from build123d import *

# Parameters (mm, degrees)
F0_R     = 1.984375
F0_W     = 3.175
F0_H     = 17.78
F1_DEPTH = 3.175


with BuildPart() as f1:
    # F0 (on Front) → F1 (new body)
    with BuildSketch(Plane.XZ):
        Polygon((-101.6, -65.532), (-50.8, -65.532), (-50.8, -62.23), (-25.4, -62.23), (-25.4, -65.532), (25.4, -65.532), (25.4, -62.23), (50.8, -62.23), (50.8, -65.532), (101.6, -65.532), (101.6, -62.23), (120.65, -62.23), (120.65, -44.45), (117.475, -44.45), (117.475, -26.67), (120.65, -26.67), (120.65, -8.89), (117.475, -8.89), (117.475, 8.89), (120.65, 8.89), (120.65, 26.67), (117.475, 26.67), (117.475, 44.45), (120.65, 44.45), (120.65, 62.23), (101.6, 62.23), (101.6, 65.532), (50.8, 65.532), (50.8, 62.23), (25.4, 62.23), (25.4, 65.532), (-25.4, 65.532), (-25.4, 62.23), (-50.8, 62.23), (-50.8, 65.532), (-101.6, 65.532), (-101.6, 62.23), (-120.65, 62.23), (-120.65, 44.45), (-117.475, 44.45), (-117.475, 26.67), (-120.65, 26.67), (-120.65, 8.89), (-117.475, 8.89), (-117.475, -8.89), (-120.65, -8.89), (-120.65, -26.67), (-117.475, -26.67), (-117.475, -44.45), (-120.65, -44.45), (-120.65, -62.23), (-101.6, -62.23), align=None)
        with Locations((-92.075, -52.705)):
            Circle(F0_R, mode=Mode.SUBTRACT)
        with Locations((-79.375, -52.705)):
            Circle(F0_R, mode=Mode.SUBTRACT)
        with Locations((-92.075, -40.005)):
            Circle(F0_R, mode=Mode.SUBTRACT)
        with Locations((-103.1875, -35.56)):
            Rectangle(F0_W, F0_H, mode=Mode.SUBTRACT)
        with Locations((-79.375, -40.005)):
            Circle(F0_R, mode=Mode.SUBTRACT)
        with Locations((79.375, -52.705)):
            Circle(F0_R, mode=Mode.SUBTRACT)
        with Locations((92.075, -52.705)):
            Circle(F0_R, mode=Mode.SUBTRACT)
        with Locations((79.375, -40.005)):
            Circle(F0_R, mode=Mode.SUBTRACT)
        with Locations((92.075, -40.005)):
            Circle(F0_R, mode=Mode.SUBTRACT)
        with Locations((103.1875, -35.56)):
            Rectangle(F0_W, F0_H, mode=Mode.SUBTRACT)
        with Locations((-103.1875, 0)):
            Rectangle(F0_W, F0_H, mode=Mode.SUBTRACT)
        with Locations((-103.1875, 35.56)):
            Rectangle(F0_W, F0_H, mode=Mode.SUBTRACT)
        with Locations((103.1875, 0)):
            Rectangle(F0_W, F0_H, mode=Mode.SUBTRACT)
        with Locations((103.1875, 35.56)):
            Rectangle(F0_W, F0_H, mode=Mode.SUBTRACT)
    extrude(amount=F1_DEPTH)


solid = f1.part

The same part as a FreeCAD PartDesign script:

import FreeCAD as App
import Part
import Sketcher
from FreeCAD import Vector
Q = App.Units.Quantity


def add_polygon(sketch, points):
    """Adds a closed chain of lines whose ends are joined by coincident constraints."""
    first, n = sketch.GeometryCount, len(points)
    for a, b in zip(points, points[1:] + points[:1]):
        sketch.addGeometry(Part.LineSegment(App.Vector(*a, 0), App.Vector(*b, 0)), False)
    for i in range(n):
        sketch.addConstraint(Sketcher.Constraint("Coincident", first + i, 2, first + (i + 1) % n, 1))

doc = App.newDocument("Part")
body = doc.addObject("PartDesign::Body", "Body")

# Sketch on XZ plane
sketch1 = doc.addObject("Sketcher::SketchObject", "Sketch")
body.addObject(sketch1)
sketch1.AttachmentSupport = (doc.XZ_Plane, [""])
sketch1.MapMode = "FlatFace"
add_polygon(sketch1, [(-101.6, -65.5), (-50.8, -65.5), (-50.8, -62.2), (-25.4, -62.2), (-25.4, -65.5), (25.4, -65.5), (25.4, -62.2), (50.8, -62.2), (50.8, -65.5), (101.6, -65.5), (101.6, -62.2), (120.7, -62.2), (120.7, -44.5), (117.5, -44.5), (117.5, -26.7), (120.7, -26.7), (120.7, -8.9), (117.5, -8.9), (117.5, 8.9), (120.7, 8.9), (120.7, 26.7), (117.5, 26.7), (117.5, 44.5), (120.7, 44.5), (120.7, 62.2), (101.6, 62.2), (101.6, 65.5), (50.8, 65.5), (50.8, 62.2), (25.4, 62.2), (25.4, 65.5), (-25.4, 65.5), (-25.4, 62.2), (-50.8, 62.2), (-50.8, 65.5), (-101.6, 65.5), (-101.6, 62.2), (-120.7, 62.2), (-120.7, 44.5), (-117.5, 44.5), (-117.5, 26.7), (-120.7, 26.7), (-120.7, 8.9), (-117.5, 8.9), (-117.5, -8.9), (-120.7, -8.9), (-120.7, -26.7), (-117.5, -26.7), (-117.5, -44.5), (-120.7, -44.5), (-120.7, -62.2), (-101.6, -62.2)])  # lines 0-51
sketch1.addGeometry(Part.Circle(Vector(-92.1, -52.7, 0), Vector(0, 0, 1), 2), False)  # 52
sketch1.addGeometry(Part.Circle(Vector(-79.4, -52.7, 0), Vector(0, 0, 1), 2), False)  # 53
sketch1.addGeometry(Part.Circle(Vector(-92.1, -40, 0), Vector(0, 0, 1), 2), False)  # 54
sketch1.addGeometry(Part.Circle(Vector(-79.4, -40, 0), Vector(0, 0, 1), 2), False)  # 55
add_polygon(sketch1, [(-101.6, -44.5), (-104.8, -44.5), (-104.8, -26.7), (-101.6, -26.7)])  # lines 56-59
sketch1.addGeometry(Part.Circle(Vector(79.4, -52.7, 0), Vector(0, 0, 1), 2), False)  # 60
sketch1.addGeometry(Part.Circle(Vector(92.1, -52.7, 0), Vector(0, 0, 1), 2), False)  # 61
sketch1.addGeometry(Part.Circle(Vector(79.4, -40, 0), Vector(0, 0, 1), 2), False)  # 62
sketch1.addGeometry(Part.Circle(Vector(92.1, -40, 0), Vector(0, 0, 1), 2), False)  # 63
add_polygon(sketch1, [(104.8, -44.5), (101.6, -44.5), (101.6, -26.7), (104.8, -26.7)])  # lines 64-67
add_polygon(sketch1, [(-101.6, -8.9), (-104.8, -8.9), (-104.8, 8.9), (-101.6, 8.9)])  # lines 68-71
add_polygon(sketch1, [(-101.6, 26.7), (-104.8, 26.7), (-104.8, 44.5), (-101.6, 44.5)])  # lines 72-75
add_polygon(sketch1, [(104.8, -8.9), (101.6, -8.9), (101.6, 8.9), (104.8, 8.9)])  # lines 76-79
add_polygon(sketch1, [(104.8, 26.7), (101.6, 26.7), (101.6, 44.5), (104.8, 44.5)])  # lines 80-83
sketch1.addConstraint([
    Sketcher.Constraint("Horizontal", 0),
    Sketcher.Constraint("Vertical", 1),
    Sketcher.Constraint("Horizontal", 2),
    Sketcher.Constraint("Vertical", 3),
    Sketcher.Constraint("Horizontal", 4),
    Sketcher.Constraint("Vertical", 5),
    Sketcher.Constraint("Horizontal", 6),
    Sketcher.Constraint("Vertical", 7),
    Sketcher.Constraint("Horizontal", 8),
    Sketcher.Constraint("Vertical", 9),
    Sketcher.Constraint("Horizontal", 10),
    Sketcher.Constraint("Vertical", 11),
    Sketcher.Constraint("Horizontal", 12),
    Sketcher.Constraint("Vertical", 13),
    Sketcher.Constraint("Horizontal", 14),
    Sketcher.Constraint("Vertical", 15),
    Sketcher.Constraint("Horizontal", 16),
    Sketcher.Constraint("Vertical", 17),
    Sketcher.Constraint("Horizontal", 18),
    Sketcher.Constraint("Vertical", 19),
    Sketcher.Constraint("Horizontal", 20),
    Sketcher.Constraint("Vertical", 21),
    Sketcher.Constraint("Horizontal", 22),
    Sketcher.Constraint("Vertical", 23),
    Sketcher.Constraint("Horizontal", 24),
    Sketcher.Constraint("Vertical", 25),
    Sketcher.Constraint("Horizontal", 26),
    Sketcher.Constraint("Vertical", 27),
    Sketcher.Constraint("Horizontal", 28),
    Sketcher.Constraint("Vertical", 29),
    Sketcher.Constraint("Horizontal", 30),
    Sketcher.Constraint("Vertical", 31),
    Sketcher.Constraint("Horizontal", 32),
    Sketcher.Constraint("Vertical", 33),
    Sketcher.Constraint("Horizontal", 34),
    Sketcher.Constraint("Vertical", 35),
    Sketcher.Constraint("Horizontal", 36),
    Sketcher.Constraint("Vertical", 37),
    Sketcher.Constraint("Horizontal", 38),
    Sketcher.Constraint("Vertical", 39),
    Sketcher.Constraint("Horizontal", 40),
    Sketcher.Constraint("Vertical", 41),
    Sketcher.Constraint("Horizontal", 42),
    Sketcher.Constraint("Vertical", 43),
    Sketcher.Constraint("Horizontal", 44),
    Sketcher.Constraint("Vertical", 45),
    Sketcher.Constraint("Horizontal", 46),
    Sketcher.Constraint("Vertical", 47),
    Sketcher.Constraint("Horizontal", 48),
    Sketcher.Constraint("Vertical", 49),
    Sketcher.Constraint("Horizontal", 50),
    Sketcher.Constraint("Vertical", 51),
    Sketcher.Constraint("Horizontal", 56),
    Sketcher.Constraint("Vertical", 57),
    Sketcher.Constraint("Horizontal", 58),
    Sketcher.Constraint("Vertical", 59),
    Sketcher.Constraint("Horizontal", 64),
    Sketcher.Constraint("Vertical", 65),
    Sketcher.Constraint("Horizontal", 66),
    Sketcher.Constraint("Vertical", 67),
    Sketcher.Constraint("Horizontal", 68),
    Sketcher.Constraint("Vertical", 69),
    Sketcher.Constraint("Horizontal", 70),
    Sketcher.Constraint("Vertical", 71),
    Sketcher.Constraint("Horizontal", 72),
    Sketcher.Constraint("Vertical", 73),
    Sketcher.Constraint("Horizontal", 74),
    Sketcher.Constraint("Vertical", 75),
    Sketcher.Constraint("Horizontal", 76),
    Sketcher.Constraint("Vertical", 77),
    Sketcher.Constraint("Horizontal", 78),
    Sketcher.Constraint("Vertical", 79),
    Sketcher.Constraint("Horizontal", 80),
    Sketcher.Constraint("Vertical", 81),
    Sketcher.Constraint("Horizontal", 82),
    Sketcher.Constraint("Vertical", 83),
    Sketcher.Constraint("Equal", 52, 53),
    Sketcher.Constraint("Equal", 53, 54),
    Sketcher.Constraint("Equal", 54, 55),
    Sketcher.Constraint("Equal", 55, 60),
    Sketcher.Constraint("Equal", 60, 61),
    Sketcher.Constraint("Equal", 61, 62),
    Sketcher.Constraint("Equal", 62, 63),
    Sketcher.Constraint("Symmetric", 0, 2, 26, 2, -1, 1),
    Sketcher.Constraint("Symmetric", 2, 2, 28, 2, -1, 1),
    Sketcher.Constraint("Symmetric", 4, 2, 30, 2, -1, 1),
    Sketcher.Constraint("Symmetric", 6, 2, 32, 2, -1, 1),
    Sketcher.Constraint("Symmetric", 8, 2, 34, 2, -1, 1),
    Sketcher.Constraint("Symmetric", 10, 2, 36, 2, -1, 1),
    Sketcher.Constraint("Symmetric", 12, 2, 38, 2, -1, 1),
    Sketcher.Constraint("Symmetric", 14, 2, 40, 2, -1, 1),
    Sketcher.Constraint("Symmetric", 16, 2, 42, 2, -1, 1),
    Sketcher.Constraint("Symmetric", 18, 2, 44, 2, -1, 1),
    Sketcher.Constraint("Symmetric", 20, 2, 46, 2, -1, 1),
    Sketcher.Constraint("Symmetric", 22, 2, 48, 2, -1, 1),
    Sketcher.Constraint("Symmetric", 24, 2, 50, 2, -1, 1),
    Sketcher.Constraint("Symmetric", 66, 2, 72, 2, -1, 1),
    Sketcher.Constraint("Symmetric", 64, 2, 74, 2, -1, 1),
    Sketcher.Constraint("Symmetric", 70, 2, 76, 2, -1, 1),
    Sketcher.Constraint("Symmetric", 68, 2, 78, 2, -1, 1),
    Sketcher.Constraint("Symmetric", 58, 2, 80, 2, -1, 1),
    Sketcher.Constraint("Symmetric", 56, 2, 82, 2, -1, 1),
    Sketcher.Constraint("Symmetric", 53, 3, 60, 3, -2),
    Sketcher.Constraint("Symmetric", 52, 3, 61, 3, -2),
    Sketcher.Constraint("Symmetric", 55, 3, 62, 3, -2),
    Sketcher.Constraint("Symmetric", 54, 3, 63, 3, -2),
    Sketcher.Constraint("Symmetric", 2, 2, 5, 2, -2),
    Sketcher.Constraint("Symmetric", 0, 2, 7, 2, -2),
    Sketcher.Constraint("Symmetric", 24, 2, 35, 2, -2),
    Sketcher.Constraint("Symmetric", 22, 2, 37, 2, -2),
    Sketcher.Constraint("Symmetric", 20, 2, 39, 2, -2),
    Sketcher.Constraint("Symmetric", 18, 2, 41, 2, -2),
    Sketcher.Constraint("Symmetric", 59, 2, 64, 2, -2),
    Sketcher.Constraint("Symmetric", 57, 2, 66, 2, -2),
    Sketcher.Constraint("Horizontal", 52, 3, 53, 3),
    Sketcher.Constraint("Horizontal", 54, 3, 55, 3),
    Sketcher.Constraint("Horizontal", 0, 2, 3, 2),
    Sketcher.Constraint("Horizontal", 6, 2, 9, 2),
    Sketcher.Constraint("Horizontal", 48, 2, 56, 2),
    Sketcher.Constraint("Horizontal", 46, 2, 57, 2),
    Sketcher.Constraint("Horizontal", 44, 2, 68, 2),
    Sketcher.Constraint("Horizontal", 42, 2, 69, 2),
    Sketcher.Constraint("Vertical", 52, 3, 54, 3),
    Sketcher.Constraint("Vertical", 53, 3, 55, 3),
    Sketcher.Constraint("Vertical", 11, 2, 14, 2),
    Sketcher.Constraint("Vertical", 13, 2, 16, 2),
    Sketcher.Constraint("Vertical", 51, 2, 58, 2),
    Sketcher.Constraint("Vertical", 57, 2, 68, 2),
    Sketcher.Constraint("Vertical", 59, 2, 70, 2),
    Sketcher.Constraint("Equal", 0, 4),
    Sketcher.Constraint("Equal", 48, 56),
    Sketcher.Constraint("Equal", 11, 13),
    Sketcher.Constraint("Equal", 13, 15),
    Sketcher.Constraint("Equal", 15, 17),
    Sketcher.Constraint("DistanceX", 0, 1, 0, 2, Q("2 in")),
    Sketcher.Constraint("DistanceX", 2, 1, 2, 2, Q("1 in")),
    Sketcher.Constraint("Diameter", 52, Q("0.15625 in")),
    Sketcher.Constraint("DistanceY", 11, 1, 11, 2, Q("0.7 in")),
    Sketcher.Constraint("DistanceX", 10, 1, 10, 2, Q("0.75 in")),
    Sketcher.Constraint("DistanceY", 1, 1, 1, 2, Q("0.13 in")),
    Sketcher.Constraint("DistanceX", 12, 2, 12, 1, Q("0.125 in")),
    Sketcher.Constraint("DistanceX", 52, 3, -1, 1, Q("3.625 in")),
    Sketcher.Constraint("DistanceY", 52, 3, -1, 1, Q("2.075 in")),
    Sketcher.Constraint("DistanceX", 53, 3, -1, 1, Q("3.125 in")),
    Sketcher.Constraint("DistanceY", 54, 3, -1, 1, Q("1.575 in")),
])
pad1 = doc.addObject("PartDesign::Pad", "Pad")
body.addObject(pad1)
pad1.Profile = sketch1
pad1.Length = Q("0.125 in")

doc.recompute()
